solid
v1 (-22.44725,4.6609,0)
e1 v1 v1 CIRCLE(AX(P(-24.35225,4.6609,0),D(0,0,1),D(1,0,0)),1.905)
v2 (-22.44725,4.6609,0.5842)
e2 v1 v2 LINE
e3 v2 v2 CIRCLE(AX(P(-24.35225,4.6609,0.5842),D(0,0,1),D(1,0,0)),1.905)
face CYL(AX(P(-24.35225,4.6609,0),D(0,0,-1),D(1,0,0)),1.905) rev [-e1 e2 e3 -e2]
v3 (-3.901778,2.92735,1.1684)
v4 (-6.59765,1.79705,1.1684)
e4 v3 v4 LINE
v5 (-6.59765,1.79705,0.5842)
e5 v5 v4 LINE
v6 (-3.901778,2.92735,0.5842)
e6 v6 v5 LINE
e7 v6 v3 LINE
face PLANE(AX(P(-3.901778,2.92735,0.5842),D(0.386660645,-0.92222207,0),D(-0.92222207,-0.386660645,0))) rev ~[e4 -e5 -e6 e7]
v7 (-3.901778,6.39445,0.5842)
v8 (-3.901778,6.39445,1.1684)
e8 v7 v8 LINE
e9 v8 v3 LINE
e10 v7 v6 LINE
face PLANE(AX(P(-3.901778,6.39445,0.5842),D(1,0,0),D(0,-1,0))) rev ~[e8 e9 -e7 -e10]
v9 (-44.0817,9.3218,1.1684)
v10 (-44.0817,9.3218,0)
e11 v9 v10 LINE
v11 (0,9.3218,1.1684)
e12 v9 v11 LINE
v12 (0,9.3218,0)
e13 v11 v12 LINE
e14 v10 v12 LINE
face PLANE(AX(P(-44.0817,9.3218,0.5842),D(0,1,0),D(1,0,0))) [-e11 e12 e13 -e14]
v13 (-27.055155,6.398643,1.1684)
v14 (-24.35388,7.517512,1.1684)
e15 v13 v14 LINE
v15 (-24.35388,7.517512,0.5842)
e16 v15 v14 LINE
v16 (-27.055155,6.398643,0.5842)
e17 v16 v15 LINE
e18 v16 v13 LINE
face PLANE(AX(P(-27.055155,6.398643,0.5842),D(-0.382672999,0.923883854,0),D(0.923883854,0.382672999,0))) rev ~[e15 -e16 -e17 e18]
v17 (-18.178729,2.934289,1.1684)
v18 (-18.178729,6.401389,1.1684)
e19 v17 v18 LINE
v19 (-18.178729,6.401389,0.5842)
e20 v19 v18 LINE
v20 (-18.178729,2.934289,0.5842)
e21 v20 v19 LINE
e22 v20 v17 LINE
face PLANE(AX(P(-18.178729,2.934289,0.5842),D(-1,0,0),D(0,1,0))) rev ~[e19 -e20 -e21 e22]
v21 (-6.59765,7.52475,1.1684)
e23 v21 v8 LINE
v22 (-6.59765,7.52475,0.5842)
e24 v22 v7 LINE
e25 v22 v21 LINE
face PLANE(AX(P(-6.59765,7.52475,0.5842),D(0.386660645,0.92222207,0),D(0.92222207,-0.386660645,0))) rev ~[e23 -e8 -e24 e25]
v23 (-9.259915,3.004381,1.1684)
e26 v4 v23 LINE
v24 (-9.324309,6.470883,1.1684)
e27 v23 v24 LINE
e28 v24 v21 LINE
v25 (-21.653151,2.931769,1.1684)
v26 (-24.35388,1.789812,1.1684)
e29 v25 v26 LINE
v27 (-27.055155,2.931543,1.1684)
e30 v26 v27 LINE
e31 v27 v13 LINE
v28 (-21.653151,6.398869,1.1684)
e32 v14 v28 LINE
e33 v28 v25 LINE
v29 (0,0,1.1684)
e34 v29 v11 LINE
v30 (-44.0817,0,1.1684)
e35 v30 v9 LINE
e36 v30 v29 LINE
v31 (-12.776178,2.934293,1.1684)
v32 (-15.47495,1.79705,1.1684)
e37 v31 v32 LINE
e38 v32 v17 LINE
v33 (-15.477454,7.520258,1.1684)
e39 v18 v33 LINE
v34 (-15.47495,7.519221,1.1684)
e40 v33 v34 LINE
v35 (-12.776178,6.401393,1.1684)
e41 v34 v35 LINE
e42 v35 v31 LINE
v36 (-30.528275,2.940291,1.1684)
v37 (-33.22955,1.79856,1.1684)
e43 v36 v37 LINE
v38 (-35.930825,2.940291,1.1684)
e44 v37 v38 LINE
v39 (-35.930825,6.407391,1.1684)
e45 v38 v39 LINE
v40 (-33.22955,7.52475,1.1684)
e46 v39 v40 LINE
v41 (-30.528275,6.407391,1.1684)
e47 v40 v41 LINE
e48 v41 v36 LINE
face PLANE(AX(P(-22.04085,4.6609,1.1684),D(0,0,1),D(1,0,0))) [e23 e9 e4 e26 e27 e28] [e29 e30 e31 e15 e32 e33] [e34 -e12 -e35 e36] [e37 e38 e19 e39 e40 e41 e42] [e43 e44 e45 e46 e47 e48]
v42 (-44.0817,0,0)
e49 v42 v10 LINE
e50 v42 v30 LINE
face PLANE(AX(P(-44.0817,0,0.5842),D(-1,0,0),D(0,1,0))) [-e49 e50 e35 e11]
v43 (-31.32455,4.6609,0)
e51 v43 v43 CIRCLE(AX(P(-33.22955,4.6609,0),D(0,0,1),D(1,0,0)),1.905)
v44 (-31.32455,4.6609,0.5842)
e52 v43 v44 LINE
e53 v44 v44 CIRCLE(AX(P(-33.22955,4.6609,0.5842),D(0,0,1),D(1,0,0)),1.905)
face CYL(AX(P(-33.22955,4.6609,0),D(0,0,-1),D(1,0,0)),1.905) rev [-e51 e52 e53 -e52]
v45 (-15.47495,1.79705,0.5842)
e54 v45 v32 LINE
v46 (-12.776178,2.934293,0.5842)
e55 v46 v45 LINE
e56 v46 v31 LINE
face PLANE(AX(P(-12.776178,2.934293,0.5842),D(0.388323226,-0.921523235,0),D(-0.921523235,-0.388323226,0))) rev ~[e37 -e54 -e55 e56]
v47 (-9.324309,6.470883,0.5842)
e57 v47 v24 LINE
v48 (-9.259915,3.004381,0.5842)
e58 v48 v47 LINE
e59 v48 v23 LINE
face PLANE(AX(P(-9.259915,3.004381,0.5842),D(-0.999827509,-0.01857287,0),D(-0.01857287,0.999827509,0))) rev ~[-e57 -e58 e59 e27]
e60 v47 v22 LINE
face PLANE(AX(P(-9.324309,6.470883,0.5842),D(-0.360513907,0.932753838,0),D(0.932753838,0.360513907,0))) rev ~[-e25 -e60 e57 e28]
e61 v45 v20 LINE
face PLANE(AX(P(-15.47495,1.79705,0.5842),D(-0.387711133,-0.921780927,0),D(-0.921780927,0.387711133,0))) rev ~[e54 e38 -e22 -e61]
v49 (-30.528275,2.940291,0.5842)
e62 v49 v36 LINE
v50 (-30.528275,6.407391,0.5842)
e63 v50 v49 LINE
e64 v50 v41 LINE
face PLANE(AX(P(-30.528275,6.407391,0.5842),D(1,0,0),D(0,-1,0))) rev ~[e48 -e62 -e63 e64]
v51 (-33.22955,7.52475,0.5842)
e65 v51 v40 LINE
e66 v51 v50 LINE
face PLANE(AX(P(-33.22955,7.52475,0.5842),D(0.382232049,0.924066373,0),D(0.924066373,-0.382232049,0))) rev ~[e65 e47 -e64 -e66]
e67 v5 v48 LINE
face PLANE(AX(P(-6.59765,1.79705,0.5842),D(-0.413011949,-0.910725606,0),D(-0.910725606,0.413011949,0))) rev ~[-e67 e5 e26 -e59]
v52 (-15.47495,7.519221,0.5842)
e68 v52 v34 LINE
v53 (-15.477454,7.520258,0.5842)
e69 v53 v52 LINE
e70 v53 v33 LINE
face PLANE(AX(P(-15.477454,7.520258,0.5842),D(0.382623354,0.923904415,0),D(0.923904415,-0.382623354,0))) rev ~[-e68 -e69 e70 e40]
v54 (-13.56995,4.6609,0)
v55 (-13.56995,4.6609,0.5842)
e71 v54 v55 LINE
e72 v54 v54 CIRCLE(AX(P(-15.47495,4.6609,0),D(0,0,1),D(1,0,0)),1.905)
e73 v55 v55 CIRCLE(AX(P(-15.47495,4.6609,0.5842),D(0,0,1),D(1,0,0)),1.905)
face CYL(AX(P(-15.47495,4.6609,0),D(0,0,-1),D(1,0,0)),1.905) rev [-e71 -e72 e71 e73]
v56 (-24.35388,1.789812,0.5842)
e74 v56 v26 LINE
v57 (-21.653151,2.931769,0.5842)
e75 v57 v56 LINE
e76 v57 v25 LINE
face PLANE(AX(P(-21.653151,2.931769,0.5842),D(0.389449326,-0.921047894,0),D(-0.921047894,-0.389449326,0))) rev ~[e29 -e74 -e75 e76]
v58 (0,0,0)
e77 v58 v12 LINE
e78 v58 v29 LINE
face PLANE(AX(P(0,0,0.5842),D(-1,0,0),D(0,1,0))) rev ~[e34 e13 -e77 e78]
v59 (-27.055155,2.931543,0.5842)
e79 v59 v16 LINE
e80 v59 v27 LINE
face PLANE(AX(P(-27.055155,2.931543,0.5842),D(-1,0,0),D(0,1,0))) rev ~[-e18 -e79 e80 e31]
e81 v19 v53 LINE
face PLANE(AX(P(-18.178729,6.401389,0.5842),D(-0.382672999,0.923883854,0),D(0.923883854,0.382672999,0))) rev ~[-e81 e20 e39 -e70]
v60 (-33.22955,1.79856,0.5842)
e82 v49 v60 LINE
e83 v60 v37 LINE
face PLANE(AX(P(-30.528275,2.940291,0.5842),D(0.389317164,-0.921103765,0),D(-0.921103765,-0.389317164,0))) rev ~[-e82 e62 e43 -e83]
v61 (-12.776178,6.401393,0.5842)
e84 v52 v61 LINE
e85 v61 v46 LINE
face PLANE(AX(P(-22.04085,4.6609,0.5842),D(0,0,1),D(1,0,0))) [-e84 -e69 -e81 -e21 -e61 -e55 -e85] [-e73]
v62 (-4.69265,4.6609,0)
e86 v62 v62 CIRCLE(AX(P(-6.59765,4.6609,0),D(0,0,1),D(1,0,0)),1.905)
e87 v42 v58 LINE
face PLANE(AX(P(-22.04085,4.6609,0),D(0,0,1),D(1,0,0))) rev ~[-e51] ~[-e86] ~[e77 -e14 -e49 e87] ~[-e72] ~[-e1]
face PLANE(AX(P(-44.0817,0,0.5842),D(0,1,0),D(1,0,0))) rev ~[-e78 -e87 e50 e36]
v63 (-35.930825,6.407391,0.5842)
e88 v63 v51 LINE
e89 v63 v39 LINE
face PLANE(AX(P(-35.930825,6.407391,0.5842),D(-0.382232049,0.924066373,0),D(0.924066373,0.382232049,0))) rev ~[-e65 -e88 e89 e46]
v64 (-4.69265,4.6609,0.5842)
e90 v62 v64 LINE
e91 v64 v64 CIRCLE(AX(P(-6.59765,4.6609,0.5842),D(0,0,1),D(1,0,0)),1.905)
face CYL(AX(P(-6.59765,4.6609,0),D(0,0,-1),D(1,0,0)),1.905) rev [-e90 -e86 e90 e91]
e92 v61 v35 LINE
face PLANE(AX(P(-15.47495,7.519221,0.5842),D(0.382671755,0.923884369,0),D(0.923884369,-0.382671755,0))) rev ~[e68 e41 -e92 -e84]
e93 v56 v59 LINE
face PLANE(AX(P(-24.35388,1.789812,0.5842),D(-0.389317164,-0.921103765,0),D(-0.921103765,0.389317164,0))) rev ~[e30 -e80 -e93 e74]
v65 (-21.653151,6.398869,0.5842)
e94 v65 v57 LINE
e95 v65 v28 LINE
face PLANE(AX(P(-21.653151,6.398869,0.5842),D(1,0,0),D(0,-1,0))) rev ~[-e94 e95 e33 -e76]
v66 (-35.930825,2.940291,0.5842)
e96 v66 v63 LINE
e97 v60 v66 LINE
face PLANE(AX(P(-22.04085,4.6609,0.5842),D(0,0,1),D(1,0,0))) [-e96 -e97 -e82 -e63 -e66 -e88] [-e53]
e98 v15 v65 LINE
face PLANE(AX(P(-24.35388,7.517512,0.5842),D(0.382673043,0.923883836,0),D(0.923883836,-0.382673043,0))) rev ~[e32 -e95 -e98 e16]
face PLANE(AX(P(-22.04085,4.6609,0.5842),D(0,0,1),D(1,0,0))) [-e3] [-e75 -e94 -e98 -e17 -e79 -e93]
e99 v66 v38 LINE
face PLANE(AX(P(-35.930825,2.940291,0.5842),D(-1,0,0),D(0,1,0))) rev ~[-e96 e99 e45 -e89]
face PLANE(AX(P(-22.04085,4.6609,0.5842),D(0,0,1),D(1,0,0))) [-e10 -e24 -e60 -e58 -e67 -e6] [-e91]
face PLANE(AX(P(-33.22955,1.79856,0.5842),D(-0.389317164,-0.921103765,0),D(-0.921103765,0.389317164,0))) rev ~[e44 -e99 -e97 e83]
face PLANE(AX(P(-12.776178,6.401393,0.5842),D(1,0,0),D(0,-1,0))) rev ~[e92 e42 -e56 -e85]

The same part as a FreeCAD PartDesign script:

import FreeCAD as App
import Part
import Sketcher
Q = App.Units.Quantity


def add_polygon(sketch, points):
    """Adds a closed chain of lines whose ends are joined by coincident constraints."""
    first, n = sketch.GeometryCount, len(points)
    for a, b in zip(points, points[1:] + points[:1]):
        sketch.addGeometry(Part.LineSegment(App.Vector(*a, 0), App.Vector(*b, 0)), False)
    for i in range(n):
        sketch.addConstraint(Sketcher.Constraint("Coincident", first + i, 2, first + (i + 1) % n, 1))

doc = App.newDocument("Part")
body = doc.addObject("PartDesign::Body", "Body")

# Sketch on XY plane
sketch1 = body.newObject("Sketcher::SketchObject", "Sketch")
sketch1.AttachmentSupport = (doc.getObject("XY_Plane"), [""])
sketch1.MapMode = "FlatFace"
add_polygon(sketch1, [(-44.0817, 9.3218), (-44.0817, 0), (0, 0), (0, 9.3218)])  # lines 0-3
sketch1.addGeometry(Part.Circle(App.Vector(-33.22955, 4.6609, 0), App.Vector(0, 0, 1), 1.905), False)  # 4
sketch1.addGeometry(Part.Circle(App.Vector(-24.35225, 4.6609, 0), App.Vector(0, 0, 1), 1.905), False)  # 5
sketch1.addGeometry(Part.Circle(App.Vector(-15.47495, 4.6609, 0), App.Vector(0, 0, 1), 1.905), False)  # 6
sketch1.addGeometry(Part.Circle(App.Vector(-6.59765, 4.6609, 0), App.Vector(0, 0, 1), 1.905), False)  # 7
sketch1.addConstraint([
    Sketcher.Constraint("Vertical", 0),
    Sketcher.Constraint("Horizontal", 1),
    Sketcher.Constraint("Vertical", 2),
    Sketcher.Constraint("Horizontal", 3),
    Sketcher.Constraint("Coincident", 1, 2, -1, 1),
    Sketcher.Constraint("Equal", 4, 5),
    Sketcher.Constraint("Equal", 5, 6),
    Sketcher.Constraint("Equal", 6, 7),
    Sketcher.Constraint("Horizontal", 4, 3, 5, 3),
    Sketcher.Constraint("Horizontal", 5, 3, 6, 3),
    Sketcher.Constraint("Horizontal", 6, 3, 7, 3),
    Sketcher.Constraint("Diameter", 4, Q("0.15 in")),
    Sketcher.Constraint("DistanceY", 0, 2, 0, 1, Q("0.367 in")),
    Sketcher.Constraint("DistanceX", 1, 1, 1, 2, Q("1.7355 in")),
    Sketcher.Constraint("DistanceX", 4, 3, 6, 3, Q("0.699 in")),
    Sketcher.Constraint("DistanceX", 5, 3, 7, 3, Q("0.699 in")),
    Sketcher.Constraint("DistanceY", -1, 1, 4, 3, Q("0.1835 in")),
    Sketcher.Constraint("DistanceX", 4, 3, 5, 3, Q("0.3495 in")),
    Sketcher.Constraint("DistanceX", 4, 3, -1, 1, Q("33.22955 mm")),
])
pad1 = body.newObject("PartDesign::Pad", "Pad")
pad1.Profile = sketch1
pad1.Length = Q("0.023 in")

# Sketch on XY plane
sketch2 = body.newObject("Sketcher::SketchObject", "Sketch001")
sketch2.AttachmentSupport = (doc.getObject("XY_Plane"), [""])
sketch2.MapMode = "FlatFace"
sketch2.AttachmentOffset = App.Placement(App.Vector(0, 0, 0.023 * 25.4), App.Rotation())
add_polygon(sketch2, [(-44.0817, 9.3218), (-44.0817, 0), (0, 0), (0, 9.3218)])  # lines 0-3
add_polygon(sketch2, [(-24.35388, 1.789812), (-27.055155, 2.931543), (-27.055155, 6.398643), (-24.35388, 7.517512), (-21.653151, 6.398869), (-21.653151, 2.931769)])  # lines 4-9
add_polygon(sketch2, [(-35.930825, 6.407391), (-33.22955, 7.52475), (-30.528275, 6.407391), (-30.528275, 2.940291), (-33.22955, 1.79856), (-35.930825, 2.940291)])  # lines 10-15
add_polygon(sketch2, [(-15.47495, 1.79705), (-18.178729, 2.934289), (-18.178729, 6.401389), (-15.477454, 7.520258), (-15.47495, 7.519221), (-12.776178, 6.401393), (-12.776178, 2.934293)])  # lines 16-22
add_polygon(sketch2, [(-6.59765, 1.79705), (-9.259915, 3.004381), (-9.324309, 6.470883), (-6.59765, 7.52475), (-3.901778, 6.39445), (-3.901778, 2.92735)])  # lines 23-28
sketch2.addConstraint([
    Sketcher.Constraint("Vertical", 0),
    Sketcher.Constraint("Horizontal", 1),
    Sketcher.Constraint("Vertical", 2),
    Sketcher.Constraint("Horizontal", 3),
    Sketcher.Constraint("Vertical", 5),
    Sketcher.Constraint("Vertical", 8),
    Sketcher.Constraint("Vertical", 12),
    Sketcher.Constraint("Vertical", 15),
    Sketcher.Constraint("Vertical", 17),
    Sketcher.Constraint("Vertical", 21),
    Sketcher.Constraint("Vertical", 27),
    Sketcher.Constraint("Coincident", 1, 2, -1, 1),
    Sketcher.Constraint("Parallel", 4, 14),
    Sketcher.Constraint("Parallel", 6, 18),
    Sketcher.Constraint("Parallel", 7, 20),
    Sketcher.Constraint("Horizontal", 12, 2, 14, 2),
    Sketcher.Constraint("Horizontal", 11, 2, 15, 2),
    Sketcher.Constraint("Horizontal", 10, 2, 25, 2),
    Sketcher.Constraint("Horizontal", 22, 2, 28, 2),
    Sketcher.Constraint("Vertical", 6, 2, 9, 2),
    Sketcher.Constraint("Vertical", 10, 2, 13, 2),
    Sketcher.Constraint("Vertical", 19, 2, 22, 2),
    Sketcher.Constraint("Vertical", 25, 2, 28, 2),
    Sketcher.Constraint("Equal", 5, 8),
    Sketcher.Constraint("Equal", 8, 12),
    Sketcher.Constraint("Equal", 15, 17),
    Sketcher.Constraint("Equal", 17, 21),
    Sketcher.Constraint("Equal", 21, 27),
    Sketcher.Constraint("Equal", 10, 11),
    Sketcher.Constraint("Equal", 4, 13),
    Sketcher.Constraint("Equal", 6, 18),
    Sketcher.Constraint("Equal", 7, 23),
    Sketcher.Constraint("Equal", 23, 25),
    Sketcher.Constraint("Equal", 25, 26),
    Sketcher.Constraint("Equal", 26, 28),
    Sketcher.Constraint("DistanceY", 0, 2, 0, 1, Q("0.367 in")),
    Sketcher.Constraint("DistanceX", 1, 1, 1, 2, Q("1.7355 in")),
    Sketcher.Constraint("DistanceY", 5, 1, 5, 2, Q("0.1365 in")),
    Sketcher.Constraint("DistanceY", 27, 2, 25, 2, Q("0.181 in")),
    Sketcher.Constraint("Distance", 24, Q("0.1365 in")),
    Sketcher.Constraint("DistanceY", 9, 2, 6, 2, Q("0.2255 in")),
    Sketcher.Constraint("DistanceY", 16, 2, 20, 2, Q("0.1365002 in")),
    Sketcher.Constraint("Distance", 22, Q("2.928599 mm")),
    Sketcher.Constraint("DistanceX", 7, 2, 19, 2, Q("6.178201 mm")),
    Sketcher.Constraint("DistanceY", 23, 2, 24, 2, Q("3.466502 mm")),
    Sketcher.Constraint("Distance", 4, Q("2.93265 mm")),
    Sketcher.Constraint("Distance", 19, Q("0.00271 mm")),
    Sketcher.Constraint("DistanceX", 6, 2, -1, 1, Q("24.35388 mm")),
    Sketcher.Constraint("DistanceX", 7, 2, -1, 1, Q("21.653151 mm")),
    Sketcher.Constraint("DistanceY", -1, 1, 7, 2, Q("6.398869 mm")),
    Sketcher.Constraint("DistanceX", 10, 2, -1, 1, Q("33.22955 mm")),
    Sketcher.Constraint("DistanceY", -1, 1, 10, 2, Q("7.52475 mm")),
    Sketcher.Constraint("DistanceY", -1, 1, 11, 2, Q("6.407391 mm")),
    Sketcher.Constraint("DistanceY", -1, 1, 13, 2, Q("1.79856 mm")),
    Sketcher.Constraint("DistanceX", 16, 2, -1, 1, Q("18.178729 mm")),
    Sketcher.Constraint("DistanceY", -1, 1, 16, 2, Q("2.934289 mm")),
    Sketcher.Constraint("DistanceX", 24, 2, -1, 1, Q("9.324309 mm")),
])
pad2 = body.newObject("PartDesign::Pad", "Pad001")
pad2.Profile = sketch2
pad2.Length = Q("0.023 in")

doc.recompute()
